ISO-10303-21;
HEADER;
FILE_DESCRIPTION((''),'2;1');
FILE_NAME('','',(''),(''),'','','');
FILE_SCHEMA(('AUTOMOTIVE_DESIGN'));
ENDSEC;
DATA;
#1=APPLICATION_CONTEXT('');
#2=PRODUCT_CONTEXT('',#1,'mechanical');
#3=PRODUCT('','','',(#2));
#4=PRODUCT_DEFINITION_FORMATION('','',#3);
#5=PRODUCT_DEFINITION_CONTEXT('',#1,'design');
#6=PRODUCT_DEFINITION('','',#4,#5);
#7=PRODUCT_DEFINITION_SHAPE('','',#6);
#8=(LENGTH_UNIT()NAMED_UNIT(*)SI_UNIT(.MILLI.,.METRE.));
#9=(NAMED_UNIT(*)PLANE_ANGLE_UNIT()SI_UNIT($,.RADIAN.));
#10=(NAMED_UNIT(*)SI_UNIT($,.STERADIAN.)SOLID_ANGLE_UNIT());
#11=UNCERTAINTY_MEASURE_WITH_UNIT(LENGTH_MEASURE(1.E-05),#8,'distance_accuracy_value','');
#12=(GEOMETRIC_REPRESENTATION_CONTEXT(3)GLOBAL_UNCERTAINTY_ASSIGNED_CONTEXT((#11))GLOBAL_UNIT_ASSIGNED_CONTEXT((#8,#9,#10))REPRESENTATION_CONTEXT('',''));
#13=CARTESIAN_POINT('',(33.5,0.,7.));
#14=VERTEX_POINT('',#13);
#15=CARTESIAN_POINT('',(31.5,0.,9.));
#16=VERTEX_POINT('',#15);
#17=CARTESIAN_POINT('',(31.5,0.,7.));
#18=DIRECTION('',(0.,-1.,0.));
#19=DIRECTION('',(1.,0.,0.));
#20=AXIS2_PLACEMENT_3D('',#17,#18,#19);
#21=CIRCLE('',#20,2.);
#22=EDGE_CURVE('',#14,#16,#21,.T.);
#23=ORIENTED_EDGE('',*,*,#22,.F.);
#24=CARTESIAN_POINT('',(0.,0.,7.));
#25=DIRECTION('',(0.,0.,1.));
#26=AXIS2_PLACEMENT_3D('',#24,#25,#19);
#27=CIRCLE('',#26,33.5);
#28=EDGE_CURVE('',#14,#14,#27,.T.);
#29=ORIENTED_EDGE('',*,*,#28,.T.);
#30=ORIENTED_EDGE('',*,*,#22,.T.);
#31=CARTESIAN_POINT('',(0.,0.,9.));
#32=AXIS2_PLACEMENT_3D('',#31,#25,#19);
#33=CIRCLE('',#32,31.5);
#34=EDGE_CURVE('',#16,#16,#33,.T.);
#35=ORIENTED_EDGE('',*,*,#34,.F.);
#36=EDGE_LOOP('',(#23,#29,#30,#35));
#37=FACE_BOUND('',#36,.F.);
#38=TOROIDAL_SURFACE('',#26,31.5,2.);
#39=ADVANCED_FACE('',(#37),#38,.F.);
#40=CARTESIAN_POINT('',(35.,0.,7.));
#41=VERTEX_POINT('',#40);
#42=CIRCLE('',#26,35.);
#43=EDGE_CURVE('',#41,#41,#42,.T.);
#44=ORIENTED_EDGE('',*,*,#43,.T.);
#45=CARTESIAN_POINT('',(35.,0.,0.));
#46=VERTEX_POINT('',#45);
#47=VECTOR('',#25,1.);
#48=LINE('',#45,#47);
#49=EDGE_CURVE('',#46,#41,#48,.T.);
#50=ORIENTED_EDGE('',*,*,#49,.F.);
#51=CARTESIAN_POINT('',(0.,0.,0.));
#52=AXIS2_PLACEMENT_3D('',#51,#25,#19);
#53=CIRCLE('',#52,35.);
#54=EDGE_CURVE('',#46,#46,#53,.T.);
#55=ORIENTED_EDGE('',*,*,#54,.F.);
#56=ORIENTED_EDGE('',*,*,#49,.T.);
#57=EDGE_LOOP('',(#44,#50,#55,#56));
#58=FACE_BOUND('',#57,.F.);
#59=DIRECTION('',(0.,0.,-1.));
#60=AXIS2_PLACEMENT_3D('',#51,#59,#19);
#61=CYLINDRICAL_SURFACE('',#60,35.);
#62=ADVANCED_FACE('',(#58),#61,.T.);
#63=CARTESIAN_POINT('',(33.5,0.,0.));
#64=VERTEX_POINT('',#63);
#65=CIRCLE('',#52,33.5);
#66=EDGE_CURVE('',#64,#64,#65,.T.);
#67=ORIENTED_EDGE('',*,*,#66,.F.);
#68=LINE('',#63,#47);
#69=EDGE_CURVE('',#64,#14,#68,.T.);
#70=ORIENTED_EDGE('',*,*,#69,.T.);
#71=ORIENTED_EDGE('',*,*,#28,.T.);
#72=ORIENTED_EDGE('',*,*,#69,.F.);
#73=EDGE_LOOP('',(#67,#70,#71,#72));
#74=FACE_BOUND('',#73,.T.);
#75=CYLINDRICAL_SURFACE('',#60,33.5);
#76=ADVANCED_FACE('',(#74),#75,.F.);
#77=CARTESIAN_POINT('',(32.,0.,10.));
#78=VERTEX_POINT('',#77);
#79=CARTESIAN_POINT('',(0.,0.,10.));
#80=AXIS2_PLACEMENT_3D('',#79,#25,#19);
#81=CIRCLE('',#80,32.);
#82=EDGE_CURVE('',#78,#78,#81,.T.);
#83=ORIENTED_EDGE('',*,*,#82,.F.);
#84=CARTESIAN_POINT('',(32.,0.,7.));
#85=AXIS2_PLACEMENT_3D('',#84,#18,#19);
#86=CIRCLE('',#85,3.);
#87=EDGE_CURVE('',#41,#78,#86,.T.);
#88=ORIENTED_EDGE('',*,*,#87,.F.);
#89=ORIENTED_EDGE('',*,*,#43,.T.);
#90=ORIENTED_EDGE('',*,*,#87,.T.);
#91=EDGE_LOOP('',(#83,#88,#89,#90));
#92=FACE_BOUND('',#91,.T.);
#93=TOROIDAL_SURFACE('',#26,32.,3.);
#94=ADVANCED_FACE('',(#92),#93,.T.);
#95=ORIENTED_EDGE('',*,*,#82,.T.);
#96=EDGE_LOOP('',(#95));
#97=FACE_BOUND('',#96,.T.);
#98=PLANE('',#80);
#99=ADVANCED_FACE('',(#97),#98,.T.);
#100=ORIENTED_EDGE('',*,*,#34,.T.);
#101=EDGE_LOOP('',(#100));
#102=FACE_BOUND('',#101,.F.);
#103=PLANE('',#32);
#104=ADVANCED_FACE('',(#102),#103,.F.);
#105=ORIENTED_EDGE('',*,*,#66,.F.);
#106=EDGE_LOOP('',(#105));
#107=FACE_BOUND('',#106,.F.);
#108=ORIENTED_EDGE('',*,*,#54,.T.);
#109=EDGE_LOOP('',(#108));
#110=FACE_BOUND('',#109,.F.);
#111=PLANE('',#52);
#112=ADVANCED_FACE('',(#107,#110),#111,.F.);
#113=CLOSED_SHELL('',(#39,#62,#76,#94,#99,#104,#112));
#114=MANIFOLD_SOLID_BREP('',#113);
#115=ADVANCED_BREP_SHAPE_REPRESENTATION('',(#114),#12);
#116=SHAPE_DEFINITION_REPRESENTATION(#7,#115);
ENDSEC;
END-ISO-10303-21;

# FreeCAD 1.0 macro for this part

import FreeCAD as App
import Part
import Sketcher
from FreeCAD import Vector


def edges_at(feature, points):
    """Names of the edges that pass closest to the given points."""
    edges = feature.Shape.Edges
    near = lambda p: min(range(len(edges)), key=lambda i: edges[i].distToShape(Part.Vertex(*p))[0])
    return sorted({f"Edge{near(p) + 1}" for p in points})

doc = App.newDocument("Part")
body = doc.addObject("PartDesign::Body", "Body")

sketch1 = body.newObject("Sketcher::SketchObject", "Sketch")
sketch1.AttachmentSupport = (doc.getObject("XY_Plane"), [""])
sketch1.MapMode = "FlatFace"
sketch1.addGeometry(Part.Circle(Vector(0, 0, 0), Vector(0, 0, 1), 35), False)
sketch1.addConstraint(Sketcher.Constraint("Coincident", 0, 3, -1, 1))
sketch1.addConstraint(Sketcher.Constraint("Diameter", 0, 70.0))
pad1 = body.newObject("PartDesign::Pad", "Pad")
pad1.Profile = sketch1
pad1.Length = 10
doc.recompute()

fillet = body.newObject("PartDesign::Fillet", "Fillet")
fillet.Base = (pad1, edges_at(pad1, [(-35, 0, 10)]))
fillet.Radius = 3

sketch2 = body.newObject("Sketcher::SketchObject", "Sketch001")
sketch2.AttachmentSupport = (doc.getObject("XY_Plane"), [""])
sketch2.MapMode = "FlatFace"
sketch2.addGeometry(Part.Circle(Vector(0, 0, 0), Vector(0, 0, 1), 34), False)
sketch2.addConstraint(Sketcher.Constraint("Coincident", 0, 3, -1, 1))
sketch2.addConstraint(Sketcher.Constraint("Diameter", 0, 67.0))
pocket1 = body.newObject("PartDesign::Pocket", "Pocket")
pocket1.Profile = sketch2
pocket1.Length = 9
pocket1.Reversed = True
doc.recompute()

fillet2 = body.newObject("PartDesign::Fillet", "Fillet001")
fillet2.Base = (pocket1, edges_at(pocket1, [(-33.5, 0, 9)]))
fillet2.Radius = 2

doc.recompute()
